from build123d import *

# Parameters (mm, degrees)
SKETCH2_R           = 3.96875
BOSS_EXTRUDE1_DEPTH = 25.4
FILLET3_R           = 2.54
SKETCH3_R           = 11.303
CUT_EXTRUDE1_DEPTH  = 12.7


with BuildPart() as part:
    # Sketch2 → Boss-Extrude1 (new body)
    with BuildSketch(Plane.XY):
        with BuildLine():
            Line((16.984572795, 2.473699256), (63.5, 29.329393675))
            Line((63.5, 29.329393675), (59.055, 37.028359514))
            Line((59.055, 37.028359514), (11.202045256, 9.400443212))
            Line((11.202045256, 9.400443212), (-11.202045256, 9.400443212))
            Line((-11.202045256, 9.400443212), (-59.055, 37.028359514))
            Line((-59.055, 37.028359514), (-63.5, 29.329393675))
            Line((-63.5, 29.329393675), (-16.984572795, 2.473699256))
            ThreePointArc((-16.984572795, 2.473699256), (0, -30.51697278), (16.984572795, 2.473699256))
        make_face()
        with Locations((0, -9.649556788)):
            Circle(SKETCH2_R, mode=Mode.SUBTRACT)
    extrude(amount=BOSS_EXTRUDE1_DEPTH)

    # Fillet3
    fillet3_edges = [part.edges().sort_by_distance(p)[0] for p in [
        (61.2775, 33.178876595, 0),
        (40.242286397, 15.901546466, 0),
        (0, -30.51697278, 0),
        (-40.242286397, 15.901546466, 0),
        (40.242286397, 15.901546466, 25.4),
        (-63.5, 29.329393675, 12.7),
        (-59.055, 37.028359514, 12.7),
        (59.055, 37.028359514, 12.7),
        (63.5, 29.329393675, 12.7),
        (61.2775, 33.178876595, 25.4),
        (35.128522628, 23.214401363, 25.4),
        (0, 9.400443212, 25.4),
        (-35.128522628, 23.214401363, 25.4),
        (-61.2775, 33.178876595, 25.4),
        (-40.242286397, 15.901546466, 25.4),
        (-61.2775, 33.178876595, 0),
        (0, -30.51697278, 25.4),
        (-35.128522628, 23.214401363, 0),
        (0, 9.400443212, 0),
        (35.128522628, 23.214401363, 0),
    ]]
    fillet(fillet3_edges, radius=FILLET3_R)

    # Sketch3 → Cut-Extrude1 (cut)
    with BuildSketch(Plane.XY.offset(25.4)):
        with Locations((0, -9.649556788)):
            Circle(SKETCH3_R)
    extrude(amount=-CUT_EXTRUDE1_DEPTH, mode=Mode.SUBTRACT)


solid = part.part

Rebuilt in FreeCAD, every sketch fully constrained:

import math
import FreeCAD as App
import Part
import Sketcher

V = App.Vector
Q = App.Units.Quantity


def edges_at(feature, points):
    """Names of the edges that pass closest to the given points."""
    edges = feature.Shape.Edges
    near = lambda p: min(range(len(edges)), key=lambda i: edges[i].distToShape(Part.Vertex(*p))[0])
    return sorted({f"Edge{near(p) + 1}" for p in points})

doc = App.newDocument("Part")
body = doc.addObject("PartDesign::Body", "Body")

sketch1 = body.newObject("Sketcher::SketchObject", "Sketch")
sketch1.AttachmentSupport = (doc.getObject("XY_Plane"), [""])
sketch1.MapMode = "FlatFace"
sketch1.addGeometry(Part.LineSegment(V(16.984573, 2.473699, 0), V(63.5, 29.329394, 0)), False)
sketch1.addGeometry(Part.LineSegment(V(63.5, 29.329394, 0), V(59.055, 37.02836, 0)), False)
sketch1.addGeometry(Part.LineSegment(V(59.055, 37.02836, 0), V(11.202045, 9.400443, 0)), False)
sketch1.addGeometry(Part.LineSegment(V(11.202045, 9.400443, 0), V(-11.202045, 9.400443, 0)), False)
sketch1.addGeometry(Part.LineSegment(V(-11.202045, 9.400443, 0), V(-59.055, 37.02836, 0)), False)
sketch1.addGeometry(Part.LineSegment(V(-59.055, 37.02836, 0), V(-63.5, 29.329394, 0)), False)
sketch1.addGeometry(Part.LineSegment(V(-63.5, 29.329394, 0), V(-16.984573, 2.473699, 0)), False)
sketch1.addGeometry(Part.ArcOfCircle(Part.Circle(V(0, -9.649557, 0), V(0, 0, 1), 20.867416), math.radians(144.481496), math.radians(395.518504)), False)
sketch1.addGeometry(Part.Circle(V(0, -9.649557, 0), V(0, 0, 1), 3.96875), False)
sketch1.addConstraint(Sketcher.Constraint("Coincident", 0, 2, 1, 1))
sketch1.addConstraint(Sketcher.Constraint("Coincident", 1, 2, 2, 1))
sketch1.addConstraint(Sketcher.Constraint("Coincident", 2, 2, 3, 1))
sketch1.addConstraint(Sketcher.Constraint("Coincident", 3, 2, 4, 1))
sketch1.addConstraint(Sketcher.Constraint("Coincident", 4, 2, 5, 1))
sketch1.addConstraint(Sketcher.Constraint("Coincident", 5, 2, 6, 1))
sketch1.addConstraint(Sketcher.Constraint("Coincident", 6, 2, 7, 1))
sketch1.addConstraint(Sketcher.Constraint("Coincident", 7, 2, 0, 1))
sketch1.addConstraint(Sketcher.Constraint("Horizontal", 3))
sketch1.addConstraint(Sketcher.Constraint("Coincident", 8, 3, 7, 3))
sketch1.addConstraint(Sketcher.Constraint("Symmetric", 1, 2, 4, 2, -2))
sketch1.addConstraint(Sketcher.Constraint("Symmetric", 0, 2, 5, 2, -2))
sketch1.addConstraint(Sketcher.Constraint("Symmetric", 6, 2, 7, 2, -2))
sketch1.addConstraint(Sketcher.Constraint("Perpendicular", 0, 1))
sketch1.addConstraint(Sketcher.Constraint("Perpendicular", 1, 2))
sketch1.addConstraint(Sketcher.Constraint("Perpendicular", 4, 5))
sketch1.addConstraint(Sketcher.Constraint("Diameter", 8, Q("0.3125 in")))
sketch1.addConstraint(Sketcher.Constraint("Angle", 0, Q("30 deg")))
sketch1.addConstraint(Sketcher.Constraint("DistanceX", -1, 1, 0, 2, Q("2.5 in")))
sketch1.addConstraint(Sketcher.Constraint("Distance", 1, Q("0.35 in")))
sketch1.addConstraint(Sketcher.Constraint("DistanceY", 8, 3, 2, 2, Q("0.75 in")))
sketch1.addConstraint(Sketcher.Constraint("Radius", 7, 20.867416))
sketch1.addConstraint(Sketcher.Constraint("DistanceX", 3, 2, 3, 1, 22.404091))
sketch1.addConstraint(Sketcher.Constraint("DistanceY", -1, 1, 6, 2, 2.473699))
pad1 = body.newObject("PartDesign::Pad", "Pad")
pad1.Profile = sketch1
pad1.Length = Q("1 in")
doc.recompute()

fillet = body.newObject("PartDesign::Fillet", "Fillet")
fillet.Base = (pad1, edges_at(pad1, [
    (61.278, 33.179, 0),
    (40.242, 15.902, 0),
    (0, -30.517, 0),
    (-40.242, 15.902, 0),
    (40.242, 15.902, 25.4),
    (-63.5, 29.329, 12.7),
    (-59.055, 37.028, 12.7),
    (59.055, 37.028, 12.7),
    (63.5, 29.329, 12.7),
    (61.278, 33.179, 25.4),
    (35.129, 23.214, 25.4),
    (0, 9.4, 25.4),
    (-35.129, 23.214, 25.4),
    (-61.278, 33.179, 25.4),
    (-40.242, 15.902, 25.4),
    (-61.278, 33.179, 0),
    (0, -30.517, 25.4),
    (-35.129, 23.214, 0),
    (0, 9.4, 0),
    (35.129, 23.214, 0),
]))
fillet.Radius = Q("0.1 in")

sketch2 = body.newObject("Sketcher::SketchObject", "Sketch001")
sketch2.AttachmentSupport = (doc.getObject("XY_Plane"), [""])
sketch2.MapMode = "FlatFace"
sketch2.AttachmentOffset = App.Placement(V(0, 0, 1 * 25.4), App.Rotation())
sketch2.addGeometry(Part.Circle(V(0, -9.649557, 0), V(0, 0, 1), 11.303), False)
sketch2.addConstraint(Sketcher.Constraint("PointOnObject", 0, 3, -2))
sketch2.addConstraint(Sketcher.Constraint("Diameter", 0, Q("0.89 in")))
sketch2.addConstraint(Sketcher.Constraint("DistanceY", 0, 3, -1, 1, 9.649557))
pocket1 = body.newObject("PartDesign::Pocket", "Pocket")
pocket1.Profile = sketch2
pocket1.Length = Q("0.5 in")

doc.recompute()
